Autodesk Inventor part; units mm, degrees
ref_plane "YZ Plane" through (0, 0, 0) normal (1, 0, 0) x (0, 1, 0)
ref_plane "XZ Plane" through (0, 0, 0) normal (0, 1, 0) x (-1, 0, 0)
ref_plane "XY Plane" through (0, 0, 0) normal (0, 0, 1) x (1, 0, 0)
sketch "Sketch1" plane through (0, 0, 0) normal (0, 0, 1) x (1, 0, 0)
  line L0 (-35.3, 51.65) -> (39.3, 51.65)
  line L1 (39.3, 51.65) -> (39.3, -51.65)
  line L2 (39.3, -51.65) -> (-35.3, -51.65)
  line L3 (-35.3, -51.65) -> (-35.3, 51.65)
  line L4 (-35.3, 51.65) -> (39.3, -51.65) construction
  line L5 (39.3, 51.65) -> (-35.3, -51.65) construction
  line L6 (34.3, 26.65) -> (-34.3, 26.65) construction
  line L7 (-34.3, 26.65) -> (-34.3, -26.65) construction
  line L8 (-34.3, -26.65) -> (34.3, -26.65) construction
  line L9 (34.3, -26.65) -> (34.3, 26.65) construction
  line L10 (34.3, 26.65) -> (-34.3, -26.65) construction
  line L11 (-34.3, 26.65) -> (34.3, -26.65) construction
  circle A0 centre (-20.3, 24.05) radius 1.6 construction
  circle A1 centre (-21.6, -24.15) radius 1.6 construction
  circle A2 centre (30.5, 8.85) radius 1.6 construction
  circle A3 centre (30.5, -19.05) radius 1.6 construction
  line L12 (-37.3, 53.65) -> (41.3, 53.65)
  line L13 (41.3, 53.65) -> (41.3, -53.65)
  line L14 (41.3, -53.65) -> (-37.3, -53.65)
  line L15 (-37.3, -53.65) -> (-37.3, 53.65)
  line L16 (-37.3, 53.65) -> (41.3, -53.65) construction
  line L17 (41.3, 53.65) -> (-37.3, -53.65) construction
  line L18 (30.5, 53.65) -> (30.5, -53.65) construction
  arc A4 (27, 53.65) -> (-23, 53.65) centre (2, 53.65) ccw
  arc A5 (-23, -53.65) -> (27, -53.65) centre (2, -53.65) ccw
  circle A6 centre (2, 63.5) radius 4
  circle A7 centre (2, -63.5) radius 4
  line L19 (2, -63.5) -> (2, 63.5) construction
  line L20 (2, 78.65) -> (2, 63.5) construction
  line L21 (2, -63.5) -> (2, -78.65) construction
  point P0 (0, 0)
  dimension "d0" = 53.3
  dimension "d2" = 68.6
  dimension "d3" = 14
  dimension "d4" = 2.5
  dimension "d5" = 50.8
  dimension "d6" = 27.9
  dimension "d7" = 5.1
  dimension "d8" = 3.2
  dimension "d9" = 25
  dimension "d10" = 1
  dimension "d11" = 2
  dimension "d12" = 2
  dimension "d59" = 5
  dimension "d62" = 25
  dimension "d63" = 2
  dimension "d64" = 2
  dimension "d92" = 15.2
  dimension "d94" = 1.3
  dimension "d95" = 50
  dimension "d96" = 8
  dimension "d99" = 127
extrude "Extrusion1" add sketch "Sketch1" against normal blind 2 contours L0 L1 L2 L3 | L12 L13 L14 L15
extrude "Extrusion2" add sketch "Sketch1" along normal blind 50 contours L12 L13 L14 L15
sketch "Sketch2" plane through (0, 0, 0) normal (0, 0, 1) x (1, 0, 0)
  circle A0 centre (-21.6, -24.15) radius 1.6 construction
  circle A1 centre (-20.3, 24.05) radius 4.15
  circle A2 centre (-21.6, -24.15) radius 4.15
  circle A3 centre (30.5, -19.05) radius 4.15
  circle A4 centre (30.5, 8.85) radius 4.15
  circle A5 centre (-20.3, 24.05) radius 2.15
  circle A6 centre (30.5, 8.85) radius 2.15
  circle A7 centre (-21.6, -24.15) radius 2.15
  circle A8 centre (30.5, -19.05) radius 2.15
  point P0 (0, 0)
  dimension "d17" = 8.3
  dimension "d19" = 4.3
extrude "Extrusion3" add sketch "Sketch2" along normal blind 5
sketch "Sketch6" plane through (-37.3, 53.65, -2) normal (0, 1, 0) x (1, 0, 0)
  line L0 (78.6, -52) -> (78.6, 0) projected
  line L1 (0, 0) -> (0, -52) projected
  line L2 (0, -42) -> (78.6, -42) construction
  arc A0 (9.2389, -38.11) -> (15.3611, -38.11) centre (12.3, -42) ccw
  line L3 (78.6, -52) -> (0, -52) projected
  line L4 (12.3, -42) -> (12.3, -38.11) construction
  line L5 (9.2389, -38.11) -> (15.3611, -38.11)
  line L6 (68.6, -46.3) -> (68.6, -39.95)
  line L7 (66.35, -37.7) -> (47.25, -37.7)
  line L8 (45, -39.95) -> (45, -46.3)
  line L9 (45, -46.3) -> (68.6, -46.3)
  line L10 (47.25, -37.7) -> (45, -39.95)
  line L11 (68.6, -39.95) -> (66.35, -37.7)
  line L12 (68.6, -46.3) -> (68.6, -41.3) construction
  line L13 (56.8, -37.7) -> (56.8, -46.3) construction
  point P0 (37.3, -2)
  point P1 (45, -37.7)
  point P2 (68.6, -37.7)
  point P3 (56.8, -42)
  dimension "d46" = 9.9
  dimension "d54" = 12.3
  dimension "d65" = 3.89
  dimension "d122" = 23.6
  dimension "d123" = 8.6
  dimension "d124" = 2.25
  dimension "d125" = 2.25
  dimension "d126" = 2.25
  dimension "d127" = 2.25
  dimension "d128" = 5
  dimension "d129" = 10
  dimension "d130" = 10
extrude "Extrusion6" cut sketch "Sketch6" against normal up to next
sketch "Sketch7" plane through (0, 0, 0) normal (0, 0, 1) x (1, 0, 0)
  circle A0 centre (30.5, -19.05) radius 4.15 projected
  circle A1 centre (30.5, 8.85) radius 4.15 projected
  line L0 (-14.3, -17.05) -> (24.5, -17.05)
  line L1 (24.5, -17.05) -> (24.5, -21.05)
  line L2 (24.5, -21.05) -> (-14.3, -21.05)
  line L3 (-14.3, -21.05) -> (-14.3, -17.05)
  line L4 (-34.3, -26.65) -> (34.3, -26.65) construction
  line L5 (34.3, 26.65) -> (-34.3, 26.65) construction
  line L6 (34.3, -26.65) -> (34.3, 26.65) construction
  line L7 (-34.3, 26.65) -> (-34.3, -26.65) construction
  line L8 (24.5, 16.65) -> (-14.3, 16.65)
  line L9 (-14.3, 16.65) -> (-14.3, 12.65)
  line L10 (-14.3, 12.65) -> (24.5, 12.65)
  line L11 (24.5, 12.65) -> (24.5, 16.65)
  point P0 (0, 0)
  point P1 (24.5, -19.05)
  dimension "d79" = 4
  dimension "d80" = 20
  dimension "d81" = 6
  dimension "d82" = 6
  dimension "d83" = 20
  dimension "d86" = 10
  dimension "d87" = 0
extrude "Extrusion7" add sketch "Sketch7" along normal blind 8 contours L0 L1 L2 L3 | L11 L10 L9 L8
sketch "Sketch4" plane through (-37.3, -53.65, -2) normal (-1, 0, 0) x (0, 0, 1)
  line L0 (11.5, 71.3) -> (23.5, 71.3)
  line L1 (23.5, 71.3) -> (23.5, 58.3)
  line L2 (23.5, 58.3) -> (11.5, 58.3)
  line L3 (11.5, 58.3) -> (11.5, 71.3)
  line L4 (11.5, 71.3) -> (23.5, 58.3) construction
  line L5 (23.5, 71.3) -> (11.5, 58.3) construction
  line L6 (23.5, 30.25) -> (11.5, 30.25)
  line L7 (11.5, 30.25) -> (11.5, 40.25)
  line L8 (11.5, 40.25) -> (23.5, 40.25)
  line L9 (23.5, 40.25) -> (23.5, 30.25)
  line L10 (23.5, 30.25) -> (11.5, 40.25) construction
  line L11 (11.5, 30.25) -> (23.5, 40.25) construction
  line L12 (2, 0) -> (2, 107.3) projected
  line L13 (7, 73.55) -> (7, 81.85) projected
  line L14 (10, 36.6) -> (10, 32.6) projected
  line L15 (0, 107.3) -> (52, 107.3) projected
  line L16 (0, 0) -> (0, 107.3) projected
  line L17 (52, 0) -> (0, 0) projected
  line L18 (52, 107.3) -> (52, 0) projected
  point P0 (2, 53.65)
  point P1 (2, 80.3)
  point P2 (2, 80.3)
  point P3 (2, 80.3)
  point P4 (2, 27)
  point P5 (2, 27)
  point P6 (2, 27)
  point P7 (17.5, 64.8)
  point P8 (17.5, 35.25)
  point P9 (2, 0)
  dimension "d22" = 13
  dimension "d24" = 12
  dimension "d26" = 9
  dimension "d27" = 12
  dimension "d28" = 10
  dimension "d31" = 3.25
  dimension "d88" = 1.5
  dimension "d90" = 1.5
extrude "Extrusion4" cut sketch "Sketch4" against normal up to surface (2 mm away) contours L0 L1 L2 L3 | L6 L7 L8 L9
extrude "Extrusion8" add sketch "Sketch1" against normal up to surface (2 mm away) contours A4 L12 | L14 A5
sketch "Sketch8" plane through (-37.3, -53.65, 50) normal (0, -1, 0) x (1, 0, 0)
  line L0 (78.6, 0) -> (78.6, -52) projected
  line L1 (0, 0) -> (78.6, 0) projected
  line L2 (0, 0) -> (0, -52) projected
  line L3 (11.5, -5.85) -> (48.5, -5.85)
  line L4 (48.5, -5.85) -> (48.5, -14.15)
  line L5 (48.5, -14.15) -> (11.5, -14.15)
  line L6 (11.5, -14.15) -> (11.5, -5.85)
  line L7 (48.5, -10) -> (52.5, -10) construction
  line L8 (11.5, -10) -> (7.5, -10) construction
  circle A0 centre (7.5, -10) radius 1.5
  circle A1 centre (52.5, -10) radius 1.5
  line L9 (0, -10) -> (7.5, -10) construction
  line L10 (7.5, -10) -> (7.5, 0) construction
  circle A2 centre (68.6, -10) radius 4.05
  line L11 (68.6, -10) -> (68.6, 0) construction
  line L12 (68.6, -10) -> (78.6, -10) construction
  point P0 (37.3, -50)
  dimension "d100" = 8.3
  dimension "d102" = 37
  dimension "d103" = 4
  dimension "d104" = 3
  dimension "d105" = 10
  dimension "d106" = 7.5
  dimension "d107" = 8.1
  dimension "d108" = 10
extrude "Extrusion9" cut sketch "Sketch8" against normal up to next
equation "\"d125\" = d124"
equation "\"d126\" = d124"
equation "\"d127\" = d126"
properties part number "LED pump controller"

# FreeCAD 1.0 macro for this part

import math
import FreeCAD as App
import Part
import Sketcher
from FreeCAD import Vector
Q = App.Units.Quantity


def add_polygon(sketch, points):
    """Adds a closed chain of lines whose ends are joined by coincident constraints."""
    first, n = sketch.GeometryCount, len(points)
    for a, b in zip(points, points[1:] + points[:1]):
        sketch.addGeometry(Part.LineSegment(App.Vector(*a, 0), App.Vector(*b, 0)), False)
    for i in range(n):
        sketch.addConstraint(Sketcher.Constraint("Coincident", first + i, 2, first + (i + 1) % n, 1))

doc = App.newDocument("Part")
body = doc.addObject("PartDesign::Body", "Body")

# Sketch on XY plane
sketch1 = body.newObject("Sketcher::SketchObject", "Sketch")
sketch1.AttachmentSupport = (doc.getObject("XY_Plane"), [""])
sketch1.MapMode = "FlatFace"
add_polygon(sketch1, [(-37, 54), (-37, -54), (41, -54), (41, 54)])  # lines 0-3
sketch1.addConstraint(Sketcher.Constraint("Vertical", 0))
sketch1.addConstraint(Sketcher.Constraint("Horizontal", 1))
sketch1.addConstraint(Sketcher.Constraint("Vertical", 2))
sketch1.addConstraint(Sketcher.Constraint("Horizontal", 3))
sketch1.addConstraint(Sketcher.Constraint("DistanceX", 1, 1, 1, 2, Q("78.6 mm")))
sketch1.addConstraint(Sketcher.Constraint("DistanceY", 0, 2, 0, 1, Q("107.3 mm")))
sketch1.addConstraint(Sketcher.Constraint("DistanceX", 0, 2, -1, 1, Q("37.3 mm")))
sketch1.addConstraint(Sketcher.Constraint("DistanceY", 0, 2, -1, 1, Q("53.65 mm")))
pad1 = body.newObject("PartDesign::Pad", "Pad")
pad1.Profile = sketch1
pad1.Length = 2
pad1.Reversed = True

# Sketch on XY plane
sketch2 = body.newObject("Sketcher::SketchObject", "Sketch001")
sketch2.AttachmentSupport = (doc.getObject("XY_Plane"), [""])
sketch2.MapMode = "FlatFace"
add_polygon(sketch2, [(41, 54), (-37, 54), (-37, -54), (41, -54)])  # lines 0-3
add_polygon(sketch2, [(-35, -52), (-35, 52), (39, 52), (39, -52)])  # lines 4-7
sketch2.addConstraint(Sketcher.Constraint("Horizontal", 0))
sketch2.addConstraint(Sketcher.Constraint("Vertical", 1))
sketch2.addConstraint(Sketcher.Constraint("Horizontal", 2))
sketch2.addConstraint(Sketcher.Constraint("Vertical", 3))
sketch2.addConstraint(Sketcher.Constraint("Vertical", 4))
sketch2.addConstraint(Sketcher.Constraint("Horizontal", 5))
sketch2.addConstraint(Sketcher.Constraint("Vertical", 6))
sketch2.addConstraint(Sketcher.Constraint("Horizontal", 7))
sketch2.addConstraint(Sketcher.Constraint("DistanceX", 0, 2, 4, 2, Q("2 mm")))
sketch2.addConstraint(Sketcher.Constraint("DistanceY", 4, 2, 0, 2, Q("2 mm")))
sketch2.addConstraint(Sketcher.Constraint("DistanceX", 5, 2, 3, 2, Q("2 mm")))
sketch2.addConstraint(Sketcher.Constraint("DistanceY", 2, 2, 6, 2, Q("2 mm")))
sketch2.addConstraint(Sketcher.Constraint("DistanceX", 0, 2, 0, 1, Q("78.6 mm")))
sketch2.addConstraint(Sketcher.Constraint("DistanceY", 1, 2, 1, 1, Q("107.3 mm")))
sketch2.addConstraint(Sketcher.Constraint("DistanceX", 0, 2, -1, 1, Q("37.3 mm")))
sketch2.addConstraint(Sketcher.Constraint("DistanceY", -1, 1, 0, 2, Q("53.65 mm")))
pad2 = body.newObject("PartDesign::Pad", "Pad001")
pad2.Profile = sketch2
pad2.Length = 50

# Sketch on XY plane
sketch3 = body.newObject("Sketcher::SketchObject", "Sketch002")
sketch3.AttachmentSupport = (doc.getObject("XY_Plane"), [""])
sketch3.MapMode = "FlatFace"
sketch3.addGeometry(Part.Circle(Vector(-20.3, 24.1, 0), Vector(0, 0, 1), 4.2), False)
sketch3.addGeometry(Part.Circle(Vector(-20.3, 24.1, 0), Vector(0, 0, 1), 2.1), False)
sketch3.addGeometry(Part.Circle(Vector(-21.6, -24.1, 0), Vector(0, 0, 1), 4.2), False)
sketch3.addGeometry(Part.Circle(Vector(-21.6, -24.1, 0), Vector(0, 0, 1), 2.1), False)
sketch3.addGeometry(Part.Circle(Vector(30.5, -19.1, 0), Vector(0, 0, 1), 4.2), False)
sketch3.addGeometry(Part.Circle(Vector(30.5, -19.1, 0), Vector(0, 0, 1), 2.1), False)
sketch3.addGeometry(Part.Circle(Vector(30.5, 8.8, 0), Vector(0, 0, 1), 4.2), False)
sketch3.addGeometry(Part.Circle(Vector(30.5, 8.8, 0), Vector(0, 0, 1), 2.1), False)
sketch3.addConstraint(Sketcher.Constraint("Coincident", 1, 3, 0, 3))
sketch3.addConstraint(Sketcher.Constraint("Coincident", 3, 3, 2, 3))
sketch3.addConstraint(Sketcher.Constraint("Coincident", 5, 3, 4, 3))
sketch3.addConstraint(Sketcher.Constraint("Coincident", 7, 3, 6, 3))
sketch3.addConstraint(Sketcher.Constraint("Equal", 0, 2))
sketch3.addConstraint(Sketcher.Constraint("Equal", 1, 3))
sketch3.addConstraint(Sketcher.Constraint("Equal", 2, 4))
sketch3.addConstraint(Sketcher.Constraint("Equal", 3, 5))
sketch3.addConstraint(Sketcher.Constraint("Equal", 4, 6))
sketch3.addConstraint(Sketcher.Constraint("Equal", 5, 7))
sketch3.addConstraint(Sketcher.Constraint("Vertical", 5, 3, 6, 3))
sketch3.addConstraint(Sketcher.Constraint("Diameter", 0, Q("8.3 mm")))
sketch3.addConstraint(Sketcher.Constraint("Diameter", 1, Q("4.3 mm")))
sketch3.addConstraint(Sketcher.Constraint("DistanceY", 2, 3, 6, 3, Q("33 mm")))
sketch3.addConstraint(Sketcher.Constraint("DistanceX", 0, 3, -1, 1, Q("20.3 mm")))
sketch3.addConstraint(Sketcher.Constraint("DistanceX", 2, 3, -1, 1, Q("21.6 mm")))
sketch3.addConstraint(Sketcher.Constraint("DistanceX", -1, 1, 4, 3, Q("30.5 mm")))
sketch3.addConstraint(Sketcher.Constraint("DistanceY", 2, 3, 0, 3, Q("48.2 mm")))
sketch3.addConstraint(Sketcher.Constraint("DistanceY", 2, 3, 4, 3, Q("5.1 mm")))
sketch3.addConstraint(Sketcher.Constraint("DistanceY", -1, 1, 0, 3, Q("24.05 mm")))
pad3 = body.newObject("PartDesign::Pad", "Pad002")
pad3.Profile = sketch3
pad3.Length = 5

# Sketch on XZ plane
sketch4 = body.newObject("Sketcher::SketchObject", "Sketch003")
sketch4.AttachmentSupport = (doc.getObject("XZ_Plane"), [""])
sketch4.MapMode = "FlatFace"
sketch4.AttachmentOffset = App.Placement(Vector(0, 0, -53.65), App.Rotation())
sketch4.addGeometry(Part.LineSegment(Vector(-21.9, 36.1, 0), Vector(-28.1, 36.1, 0)), False)  # 0
sketch4.addGeometry(Part.ArcOfCircle(Part.Circle(Vector(-25, 40, 0), Vector(0, 0, 1), 4.9), math.radians(-52), math.radians(232)), False)  # 1
add_polygon(sketch4, [(7.7, 44.3), (31.3, 44.3), (31.3, 38), (29.1, 35.7), (9.9, 35.7), (7.7, 38)])  # lines 2-7
sketch4.addConstraint(Sketcher.Constraint("Coincident", 0, 1, 1, 1))
sketch4.addConstraint(Sketcher.Constraint("Coincident", 1, 2, 0, 2))
sketch4.addConstraint(Sketcher.Constraint("Horizontal", 0))
sketch4.addConstraint(Sketcher.Constraint("Horizontal", 2))
sketch4.addConstraint(Sketcher.Constraint("Vertical", 3))
sketch4.addConstraint(Sketcher.Constraint("Horizontal", 5))
sketch4.addConstraint(Sketcher.Constraint("Vertical", 7))
sketch4.addConstraint(Sketcher.Constraint("Perpendicular", 4, 6))
sketch4.addConstraint(Sketcher.Constraint("Horizontal", 3, 2, 6, 2))
sketch4.addConstraint(Sketcher.Constraint("Equal", 4, 6))
sketch4.addConstraint(Sketcher.Constraint("Radius", 1, Q("4.95 mm")))
sketch4.addConstraint(Sketcher.Constraint("DistanceX", 2, 1, 2, 2, Q("23.6 mm")))
sketch4.addConstraint(Sketcher.Constraint("DistanceY", 4, 2, 2, 2, Q("8.6 mm")))
sketch4.addConstraint(Sketcher.Constraint("DistanceY", 0, 1, 1, 3, Q("3.89 mm")))
sketch4.addConstraint(Sketcher.Constraint("DistanceX", 4, 2, 3, 2, Q("2.25 mm")))
sketch4.addConstraint(Sketcher.Constraint("DistanceX", 1, 3, -1, 1, Q("25 mm")))
sketch4.addConstraint(Sketcher.Constraint("DistanceY", -1, 1, 1, 3, Q("40 mm")))
sketch4.addConstraint(Sketcher.Constraint("DistanceX", -1, 1, 2, 2, Q("31.3 mm")))
sketch4.addConstraint(Sketcher.Constraint("DistanceY", -1, 1, 2, 2, Q("44.3 mm")))
pocket1 = body.newObject("PartDesign::Pocket", "Pocket")
pocket1.Profile = sketch4
pocket1.Type = "UpToFirst"
pocket1.Reversed = True

# Sketch on XY plane
sketch5 = body.newObject("Sketcher::SketchObject", "Sketch004")
sketch5.AttachmentSupport = (doc.getObject("XY_Plane"), [""])
sketch5.MapMode = "FlatFace"
add_polygon(sketch5, [(24.5, -17.1), (-14.3, -17.1), (-14.3, -21.1), (24.5, -21.1)])  # lines 0-3
add_polygon(sketch5, [(24.5, 12.7), (24.5, 16.6), (-14.3, 16.6), (-14.3, 12.7)])  # lines 4-7
sketch5.addConstraint(Sketcher.Constraint("Horizontal", 0))
sketch5.addConstraint(Sketcher.Constraint("Vertical", 1))
sketch5.addConstraint(Sketcher.Constraint("Horizontal", 2))
sketch5.addConstraint(Sketcher.Constraint("Vertical", 3))
sketch5.addConstraint(Sketcher.Constraint("Vertical", 4))
sketch5.addConstraint(Sketcher.Constraint("Horizontal", 5))
sketch5.addConstraint(Sketcher.Constraint("Vertical", 6))
sketch5.addConstraint(Sketcher.Constraint("Horizontal", 7))
sketch5.addConstraint(Sketcher.Constraint("Vertical", 3, 2, 4, 2))
sketch5.addConstraint(Sketcher.Constraint("Vertical", 1, 2, 5, 2))
sketch5.addConstraint(Sketcher.Constraint("Equal", 3, 4))
sketch5.addConstraint(Sketcher.Constraint("DistanceY", 1, 2, 1, 1, Q("4 mm")))
sketch5.addConstraint(Sketcher.Constraint("DistanceX", 0, 2, 0, 1, Q("38.8 mm")))
sketch5.addConstraint(Sketcher.Constraint("DistanceX", 0, 2, -1, 1, Q("14.3 mm")))
sketch5.addConstraint(Sketcher.Constraint("DistanceY", 3, 2, 4, 2, Q("33.7 mm")))
sketch5.addConstraint(Sketcher.Constraint("DistanceY", 0, 2, -1, 1, Q("17.05 mm")))
pad4 = body.newObject("PartDesign::Pad", "Pad003")
pad4.Profile = sketch5
pad4.Length = 8

# Sketch on YZ plane
sketch6 = body.newObject("Sketcher::SketchObject", "Sketch005")
sketch6.AttachmentSupport = (doc.getObject("YZ_Plane"), [""])
sketch6.MapMode = "FlatFace"
sketch6.AttachmentOffset = App.Placement(Vector(0, 0, -37.3), App.Rotation())
add_polygon(sketch6, [(18, 22), (18, 10), (5, 10), (5, 22)])  # lines 0-3
add_polygon(sketch6, [(-23, 10), (-23, 22), (-13, 22), (-13, 10)])  # lines 4-7
sketch6.addConstraint(Sketcher.Constraint("Vertical", 0))
sketch6.addConstraint(Sketcher.Constraint("Horizontal", 1))
sketch6.addConstraint(Sketcher.Constraint("Vertical", 2))
sketch6.addConstraint(Sketcher.Constraint("Horizontal", 3))
sketch6.addConstraint(Sketcher.Constraint("Vertical", 4))
sketch6.addConstraint(Sketcher.Constraint("Horizontal", 5))
sketch6.addConstraint(Sketcher.Constraint("Vertical", 6))
sketch6.addConstraint(Sketcher.Constraint("Horizontal", 7))
sketch6.addConstraint(Sketcher.Constraint("Horizontal", 3, 2, 4, 2))
sketch6.addConstraint(Sketcher.Constraint("Horizontal", 1, 2, 6, 2))
sketch6.addConstraint(Sketcher.Constraint("DistanceX", 1, 2, 1, 1, Q("13 mm")))
sketch6.addConstraint(Sketcher.Constraint("DistanceX", 5, 1, 5, 2, Q("10 mm")))
sketch6.addConstraint(Sketcher.Constraint("DistanceY", 0, 2, 0, 1, Q("12 mm")))
sketch6.addConstraint(Sketcher.Constraint("DistanceY", -1, 1, 0, 2, Q("9.5 mm")))
sketch6.addConstraint(Sketcher.Constraint("DistanceX", 4, 2, -1, 1, Q("23.4 mm")))
sketch6.addConstraint(Sketcher.Constraint("DistanceX", -1, 1, 0, 2, Q("17.65 mm")))
pocket2 = body.newObject("PartDesign::Pocket", "Pocket001")
pocket2.Profile = sketch6
pocket2.Length = 2
pocket2.Reversed = True

# Sketch on XY plane
sketch7 = body.newObject("Sketcher::SketchObject", "Sketch006")
sketch7.AttachmentSupport = (doc.getObject("XY_Plane"), [""])
sketch7.MapMode = "FlatFace"
sketch7.addGeometry(Part.ArcOfCircle(Part.Circle(Vector(2, 53.6, 0), Vector(0, 0, 1), 25), math.radians(0), math.radians(180)), False)
sketch7.addGeometry(Part.LineSegment(Vector(-23, 53.6, 0), Vector(27, 53.6, 0)), False)
sketch7.addGeometry(Part.Circle(Vector(2, 63.5, 0), Vector(0, 0, 1), 4), False)
sketch7.addGeometry(Part.LineSegment(Vector(27, -53.6, 0), Vector(-23, -53.6, 0)), False)
sketch7.addGeometry(Part.ArcOfCircle(Part.Circle(Vector(2, -53.6, 0), Vector(0, 0, 1), 25), math.radians(180), math.radians(360)), False)
sketch7.addGeometry(Part.Circle(Vector(2, -63.5, 0), Vector(0, 0, 1), 4), False)
sketch7.addConstraint(Sketcher.Constraint("Coincident", 0, 1, 1, 2))
sketch7.addConstraint(Sketcher.Constraint("Coincident", 1, 1, 0, 2))
sketch7.addConstraint(Sketcher.Constraint("Coincident", 3, 1, 4, 2))
sketch7.addConstraint(Sketcher.Constraint("Coincident", 4, 1, 3, 2))
sketch7.addConstraint(Sketcher.Constraint("Horizontal", 1))
sketch7.addConstraint(Sketcher.Constraint("Horizontal", 3))
sketch7.addConstraint(Sketcher.Constraint("Equal", 0, 4))
sketch7.addConstraint(Sketcher.Constraint("Equal", 2, 5))
sketch7.addConstraint(Sketcher.Constraint("Symmetric", 0, 3, 4, 3, -1))
sketch7.addConstraint(Sketcher.Constraint("Symmetric", 2, 3, 5, 3, -1))
sketch7.addConstraint(Sketcher.Constraint("Horizontal", 4, 3, 3, 1))
sketch7.addConstraint(Sketcher.Constraint("Vertical", 0, 3, 2, 3))
sketch7.addConstraint(Sketcher.Constraint("Diameter", 2, Q("8 mm")))
sketch7.addConstraint(Sketcher.Constraint("Radius", 0, Q("25 mm")))
sketch7.addConstraint(Sketcher.Constraint("DistanceX", -1, 1, 0, 3, Q("2 mm")))
sketch7.addConstraint(Sketcher.Constraint("DistanceY", 5, 3, 2, 3, Q("127 mm")))
sketch7.addConstraint(Sketcher.Constraint("DistanceY", 4, 3, 0, 3, Q("107.3 mm")))
sketch7.addConstraint(Sketcher.Constraint("DistanceY", 4, 3, 0, 1, Q("107.3 mm")))
pad5 = body.newObject("PartDesign::Pad", "Pad004")
pad5.Profile = sketch7
pad5.Length = 2
pad5.Reversed = True

# Sketch on XZ plane
sketch8 = body.newObject("Sketcher::SketchObject", "Sketch007")
sketch8.AttachmentSupport = (doc.getObject("XZ_Plane"), [""])
sketch8.MapMode = "FlatFace"
sketch8.AttachmentOffset = App.Placement(Vector(0, 0, 53.65), App.Rotation())
add_polygon(sketch8, [(11.2, 44.1), (-25.8, 44.1), (-25.8, 35.9), (11.2, 35.9)])  # lines 0-3
sketch8.addGeometry(Part.Circle(Vector(-29.8, 40, 0), Vector(0, 0, 1), 1.5), False)  # 4
sketch8.addGeometry(Part.Circle(Vector(15.2, 40, 0), Vector(0, 0, 1), 1.5), False)  # 5
sketch8.addGeometry(Part.Circle(Vector(31.3, 40, 0), Vector(0, 0, 1), 4), False)  # 6
sketch8.addConstraint(Sketcher.Constraint("Horizontal", 0))
sketch8.addConstraint(Sketcher.Constraint("Vertical", 1))
sketch8.addConstraint(Sketcher.Constraint("Horizontal", 2))
sketch8.addConstraint(Sketcher.Constraint("Vertical", 3))
sketch8.addConstraint(Sketcher.Constraint("Equal", 4, 5))
sketch8.addConstraint(Sketcher.Constraint("Horizontal", 4, 3, 5, 3))
sketch8.addConstraint(Sketcher.Constraint("Horizontal", 5, 3, 6, 3))
sketch8.addConstraint(Sketcher.Constraint("Diameter", 4, Q("3 mm")))
sketch8.addConstraint(Sketcher.Constraint("Diameter", 6, Q("8.1 mm")))
sketch8.addConstraint(Sketcher.Constraint("DistanceX", 0, 2, 0, 1, Q("37 mm")))
sketch8.addConstraint(Sketcher.Constraint("DistanceY", 1, 2, 1, 1, Q("8.3 mm")))
sketch8.addConstraint(Sketcher.Constraint("DistanceX", 4, 3, 0, 2, Q("4 mm")))
sketch8.addConstraint(Sketcher.Constraint("DistanceX", 2, 2, 5, 3, Q("4 mm")))
sketch8.addConstraint(Sketcher.Constraint("DistanceY", -1, 1, 4, 3, Q("40 mm")))
sketch8.addConstraint(Sketcher.Constraint("DistanceX", 4, 3, -1, 1, Q("29.8 mm")))
sketch8.addConstraint(Sketcher.Constraint("DistanceX", -1, 1, 6, 3, Q("31.3 mm")))
sketch8.addConstraint(Sketcher.Constraint("DistanceY", -1, 1, 0, 2, Q("44.15 mm")))
pocket3 = body.newObject("PartDesign::Pocket", "Pocket002")
pocket3.Profile = sketch8
pocket3.Type = "UpToFirst"

doc.recompute()
